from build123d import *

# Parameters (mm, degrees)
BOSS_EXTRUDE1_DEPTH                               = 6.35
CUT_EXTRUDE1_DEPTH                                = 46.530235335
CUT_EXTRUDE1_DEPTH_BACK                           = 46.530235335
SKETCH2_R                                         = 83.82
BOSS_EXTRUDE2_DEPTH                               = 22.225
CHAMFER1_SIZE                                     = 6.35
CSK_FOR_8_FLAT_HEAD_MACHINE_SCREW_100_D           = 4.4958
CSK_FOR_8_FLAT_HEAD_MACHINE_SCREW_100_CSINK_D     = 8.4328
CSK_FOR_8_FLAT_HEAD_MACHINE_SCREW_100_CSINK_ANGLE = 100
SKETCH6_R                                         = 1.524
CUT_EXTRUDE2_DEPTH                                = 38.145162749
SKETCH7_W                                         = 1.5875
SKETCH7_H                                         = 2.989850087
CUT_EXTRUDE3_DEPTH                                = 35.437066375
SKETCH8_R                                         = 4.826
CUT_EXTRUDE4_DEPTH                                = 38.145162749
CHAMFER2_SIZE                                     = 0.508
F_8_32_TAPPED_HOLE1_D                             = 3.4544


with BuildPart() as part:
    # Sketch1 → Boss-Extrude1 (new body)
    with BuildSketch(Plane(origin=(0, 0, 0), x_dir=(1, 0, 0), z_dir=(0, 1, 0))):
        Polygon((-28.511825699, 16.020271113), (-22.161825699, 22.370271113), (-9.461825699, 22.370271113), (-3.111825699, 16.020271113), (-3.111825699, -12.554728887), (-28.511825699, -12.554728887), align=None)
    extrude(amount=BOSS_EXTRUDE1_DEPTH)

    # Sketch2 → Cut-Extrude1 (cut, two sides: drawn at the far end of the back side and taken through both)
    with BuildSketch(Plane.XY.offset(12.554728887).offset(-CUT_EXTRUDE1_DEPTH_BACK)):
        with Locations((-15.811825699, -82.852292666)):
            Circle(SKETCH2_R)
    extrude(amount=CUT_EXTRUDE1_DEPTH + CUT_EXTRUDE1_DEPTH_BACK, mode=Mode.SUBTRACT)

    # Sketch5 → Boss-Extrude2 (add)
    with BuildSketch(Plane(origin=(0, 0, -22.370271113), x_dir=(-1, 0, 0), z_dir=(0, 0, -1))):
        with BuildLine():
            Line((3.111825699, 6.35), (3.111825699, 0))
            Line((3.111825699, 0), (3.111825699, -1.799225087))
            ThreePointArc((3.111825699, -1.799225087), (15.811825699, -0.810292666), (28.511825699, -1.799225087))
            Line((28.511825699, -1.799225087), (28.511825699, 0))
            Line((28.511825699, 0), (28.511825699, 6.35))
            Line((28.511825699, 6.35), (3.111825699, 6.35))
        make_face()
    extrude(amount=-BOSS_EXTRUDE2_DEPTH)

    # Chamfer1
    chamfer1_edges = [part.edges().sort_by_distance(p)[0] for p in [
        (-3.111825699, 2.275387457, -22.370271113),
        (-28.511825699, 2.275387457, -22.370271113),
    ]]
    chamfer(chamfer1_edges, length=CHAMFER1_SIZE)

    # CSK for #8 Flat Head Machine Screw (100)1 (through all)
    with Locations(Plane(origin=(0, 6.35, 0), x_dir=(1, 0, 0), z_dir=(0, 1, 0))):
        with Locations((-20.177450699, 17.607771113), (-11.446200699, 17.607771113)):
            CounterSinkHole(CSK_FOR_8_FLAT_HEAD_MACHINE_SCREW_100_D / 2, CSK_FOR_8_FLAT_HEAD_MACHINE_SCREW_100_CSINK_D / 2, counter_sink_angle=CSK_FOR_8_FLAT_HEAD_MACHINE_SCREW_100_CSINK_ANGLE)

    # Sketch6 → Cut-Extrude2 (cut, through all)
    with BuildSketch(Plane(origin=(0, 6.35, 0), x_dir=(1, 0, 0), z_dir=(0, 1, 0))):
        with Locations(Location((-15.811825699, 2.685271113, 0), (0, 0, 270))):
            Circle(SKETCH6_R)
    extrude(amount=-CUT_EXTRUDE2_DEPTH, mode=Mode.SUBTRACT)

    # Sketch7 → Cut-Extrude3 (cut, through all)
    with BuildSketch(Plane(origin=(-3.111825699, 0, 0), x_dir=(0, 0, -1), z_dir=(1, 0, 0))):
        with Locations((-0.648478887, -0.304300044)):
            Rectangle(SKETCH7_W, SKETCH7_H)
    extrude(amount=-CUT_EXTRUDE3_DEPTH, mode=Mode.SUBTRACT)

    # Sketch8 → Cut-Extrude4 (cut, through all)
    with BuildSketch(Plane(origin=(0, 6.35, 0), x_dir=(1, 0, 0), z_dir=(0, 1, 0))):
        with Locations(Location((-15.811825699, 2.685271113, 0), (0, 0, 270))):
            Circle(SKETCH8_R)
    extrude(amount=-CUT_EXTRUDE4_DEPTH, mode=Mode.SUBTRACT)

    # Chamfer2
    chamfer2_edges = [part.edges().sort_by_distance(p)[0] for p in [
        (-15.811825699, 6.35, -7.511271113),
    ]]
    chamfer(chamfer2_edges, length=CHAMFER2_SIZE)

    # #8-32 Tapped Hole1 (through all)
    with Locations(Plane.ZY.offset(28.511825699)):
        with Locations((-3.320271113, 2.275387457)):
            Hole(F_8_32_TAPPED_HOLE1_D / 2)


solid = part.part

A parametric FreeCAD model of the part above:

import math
import FreeCAD as App
import Part
import Sketcher
Q = App.Units.Quantity


def edges_at(feature, points):
    """Names of the edges that pass closest to the given points."""
    edges = feature.Shape.Edges
    near = lambda p: min(range(len(edges)), key=lambda i: edges[i].distToShape(Part.Vertex(*p))[0])
    return sorted({f"Edge{near(p) + 1}" for p in points})


def add_polygon(sketch, points):
    """Adds a closed chain of lines whose ends are joined by coincident constraints."""
    first, n = sketch.GeometryCount, len(points)
    for a, b in zip(points, points[1:] + points[:1]):
        sketch.addGeometry(Part.LineSegment(App.Vector(*a, 0), App.Vector(*b, 0)), False)
    for i in range(n):
        sketch.addConstraint(Sketcher.Constraint("Coincident", first + i, 2, first + (i + 1) % n, 1))

doc = App.newDocument("Part")
body = doc.addObject("PartDesign::Body", "Body")

# Sketch on XZ plane
sketch1 = doc.addObject("Sketcher::SketchObject", "Sketch")
body.addObject(sketch1)
sketch1.AttachmentSupport = (doc.XZ_Plane, [""])
sketch1.MapMode = "FlatFace"
add_polygon(sketch1, [(-22, -22), (-29, -16), (-29, 13), (-3, 13), (-3, -16), (-9, -22)])  # lines 0-5
sketch1.addConstraint([
    Sketcher.Constraint("Vertical", 1),
    Sketcher.Constraint("Horizontal", 2),
    Sketcher.Constraint("Vertical", 3),
    Sketcher.Constraint("Horizontal", 5),
    Sketcher.Constraint("Perpendicular", 0, 4),
    Sketcher.Constraint("Horizontal", 0, 2, 3, 2),
    Sketcher.Constraint("Equal", 0, 4),
    Sketcher.Constraint("DistanceX", 2, 1, 2, 2, Q("1 in")),
    Sketcher.Constraint("DistanceX", 5, 2, 5, 1, Q("0.5 in")),
    Sketcher.Constraint("DistanceY", 1, 1, 1, 2, Q("1.125 in")),
    Sketcher.Constraint("DistanceY", 0, 2, -1, 1, 16.020271),
    Sketcher.Constraint("DistanceX", 0, 2, -1, 1, 28.511826),
])
pad1 = doc.addObject("PartDesign::Pad", "Pad")
body.addObject(pad1)
pad1.Profile = sketch1
pad1.Length = Q("0.25 in")
pad1.Reversed = True

# Sketch on XY plane
sketch2 = doc.addObject("Sketcher::SketchObject", "Sketch001")
body.addObject(sketch2)
sketch2.AttachmentSupport = (doc.XY_Plane, [""])
sketch2.MapMode = "FlatFace"
sketch2.AttachmentOffset = App.Placement(App.Vector(0, 0, 12.554729), App.Rotation())
sketch2.addGeometry(Part.Circle(App.Vector(-16, -83, 0), App.Vector(0, 0, 1), 84), False)
sketch2.addConstraint([
    Sketcher.Constraint("Diameter", 0, Q("6.6 in")),
    Sketcher.Constraint("DistanceX", 0, 3, -1, 1, 15.811826),
    Sketcher.Constraint("DistanceY", 0, 3, -1, 1, 82.852293),
])
pocket1 = doc.addObject("PartDesign::Pocket", "Pocket")
body.addObject(pocket1)
pocket1.Profile = sketch2
pocket1.Type = "ThroughAll"
pocket1.Midplane = True

# Sketch on XY plane
sketch3 = doc.addObject("Sketcher::SketchObject", "Sketch002")
body.addObject(sketch3)
sketch3.AttachmentSupport = (doc.XY_Plane, [""])
sketch3.MapMode = "FlatFace"
sketch3.AttachmentOffset = App.Placement(App.Vector(0, 0, -22.370271), App.Rotation())
sketch3.addGeometry([
    Part.LineSegment(App.Vector(-3, 6, 0), App.Vector(-3, -2, 0)),
    Part.ArcOfCircle(Part.Circle(App.Vector(-16, -83, 0), App.Vector(0, 0, 1), 82), math.radians(81.09), math.radians(98.91)),
    Part.LineSegment(App.Vector(-29, -2, 0), App.Vector(-29, 6, 0)),
    Part.LineSegment(App.Vector(-29, 6, 0), App.Vector(-3, 6, 0)),
], False)
sketch3.addConstraint([
    Sketcher.Constraint("Coincident", 0, 2, 1, 1),
    Sketcher.Constraint("Coincident", 1, 2, 2, 1),
    Sketcher.Constraint("Coincident", 2, 2, 3, 1),
    Sketcher.Constraint("Coincident", 3, 2, 0, 1),
    Sketcher.Constraint("Vertical", 0),
    Sketcher.Constraint("Vertical", 2),
    Sketcher.Constraint("Horizontal", 3),
    Sketcher.Constraint("Horizontal", 0, 2, 1, 2),
    Sketcher.Constraint("DistanceX", 3, 1, 3, 2, Q("1 in")),
    Sketcher.Constraint("Radius", 1, Q("3.23 in")),
    Sketcher.Constraint("DistanceY", -1, 1, 2, 2, Q("0.25 in")),
    Sketcher.Constraint("DistanceY", 0, 2, 0, 1, 8.149225),
    Sketcher.Constraint("DistanceX", 1, 3, -1, 1, 15.811826),
])
pad2 = doc.addObject("PartDesign::Pad", "Pad001")
body.addObject(pad2)
pad2.Profile = sketch3
pad2.Length = Q("0.875 in")
doc.recompute()

chamfer = doc.addObject("PartDesign::Chamfer", "Chamfer")
body.addObject(chamfer)
chamfer.Base = (pad2, edges_at(pad2, [(-3.112, 2.275, -22.37), (-28.512, 2.275, -22.37)]))
chamfer.Size = Q("0.25 in")

# Sketch on XZ plane
sketch4 = doc.addObject("Sketcher::SketchObject", "Sketch003")
body.addObject(sketch4)
sketch4.AttachmentSupport = (doc.XZ_Plane, [""])
sketch4.MapMode = "FlatFace"
sketch4.AttachmentOffset = App.Placement(App.Vector(0, 0, -0.25 * 25.4), App.Rotation())
sketch4.addGeometry([
    Part.Circle(App.Vector(-20.2, -17.6, 0), App.Vector(0, 0, 1), 2.2),
    Part.Circle(App.Vector(-11.4, -17.6, 0), App.Vector(0, 0, 1), 2.2),
], False)
sketch4.addConstraint([
    Sketcher.Constraint("Equal", 0, 1),
    Sketcher.Constraint("Horizontal", 0, 3, 1, 3),
    Sketcher.Constraint("Diameter", 0, Q("0.177 in")),
    Sketcher.Constraint("DistanceX", 0, 3, 1, 3, Q("0.34375 in")),
    Sketcher.Constraint("DistanceX", 1, 3, -1, 1, 11.446201),
    Sketcher.Constraint("DistanceY", 0, 3, -1, 1, 17.607771),
])
doc.recompute()
hole = doc.addObject("PartDesign::Hole", "Hole")
body.addObject(hole)
hole.Profile = sketch4
hole.ThreadType = "None"
hole.Diameter = Q("0.177 in")
hole.DepthType = "ThroughAll"
hole.HoleCutType = "Countersink"
hole.HoleCutDiameter = Q("0.332 in")
hole.HoleCutCountersinkAngle = 100
hole.Reversed = True

# Sketch on XZ plane
sketch5 = doc.addObject("Sketcher::SketchObject", "Sketch004")
body.addObject(sketch5)
sketch5.AttachmentSupport = (doc.XZ_Plane, [""])
sketch5.MapMode = "FlatFace"
sketch5.AttachmentOffset = App.Placement(App.Vector(0, 0, -0.25 * 25.4), App.Rotation())
sketch5.addGeometry(Part.Circle(App.Vector(-15.8, -2.7, 0), App.Vector(0, 0, 1), 1.5), False)
sketch5.addConstraint([
    Sketcher.Constraint("Diameter", 0, Q("0.12 in")),
    Sketcher.Constraint("DistanceY", 0, 3, -1, 1, 2.685271),
    Sketcher.Constraint("DistanceX", 0, 3, -1, 1, 15.811826),
])
pocket2 = doc.addObject("PartDesign::Pocket", "Pocket001")
body.addObject(pocket2)
pocket2.Profile = sketch5
pocket2.Type = "ThroughAll"
pocket2.Reversed = True

# Sketch on YZ plane
sketch6 = doc.addObject("Sketcher::SketchObject", "Sketch005")
body.addObject(sketch6)
sketch6.AttachmentSupport = (doc.YZ_Plane, [""])
sketch6.MapMode = "FlatFace"
sketch6.AttachmentOffset = App.Placement(App.Vector(0, 0, -3.111826), App.Rotation())
add_polygon(sketch6, [(1.2, 1.4), (-1.8, 1.4), (-1.8, -0.1), (1.2, -0.1)])  # lines 0-3
sketch6.addConstraint([
    Sketcher.Constraint("Horizontal", 0),
    Sketcher.Constraint("Vertical", 1),
    Sketcher.Constraint("Horizontal", 2),
    Sketcher.Constraint("Vertical", 3),
    Sketcher.Constraint("DistanceY", 1, 2, 1, 1, Q("0.0625 in")),
    Sketcher.Constraint("DistanceX", -1, 1, 2, 2, Q("0.046875 in")),
    Sketcher.Constraint("DistanceX", 0, 2, 0, 1, 2.98985),
    Sketcher.Constraint("DistanceY", -1, 1, 0, 2, 1.442229),
])
pocket3 = doc.addObject("PartDesign::Pocket", "Pocket002")
body.addObject(pocket3)
pocket3.Profile = sketch6
pocket3.Type = "ThroughAll"

# Sketch on XZ plane
sketch7 = doc.addObject("Sketcher::SketchObject", "Sketch006")
body.addObject(sketch7)
sketch7.AttachmentSupport = (doc.XZ_Plane, [""])
sketch7.MapMode = "FlatFace"
sketch7.AttachmentOffset = App.Placement(App.Vector(0, 0, -0.25 * 25.4), App.Rotation())
sketch7.addGeometry(Part.Circle(App.Vector(-15.8, -2.7, 0), App.Vector(0, 0, 1), 4.8), False)
sketch7.addConstraint([
    Sketcher.Constraint("Diameter", 0, Q("0.38 in")),
    Sketcher.Constraint("DistanceY", 0, 3, -1, 1, 2.685271),
    Sketcher.Constraint("DistanceX", 0, 3, -1, 1, 15.811826),
])
pocket4 = doc.addObject("PartDesign::Pocket", "Pocket003")
body.addObject(pocket4)
pocket4.Profile = sketch7
pocket4.Type = "ThroughAll"
pocket4.Reversed = True
doc.recompute()

chamfer2 = doc.addObject("PartDesign::Chamfer", "Chamfer001")
body.addObject(chamfer2)
chamfer2.Base = (pocket4, edges_at(pocket4, [(-15.812, 6.35, -7.511)]))
chamfer2.Size = Q("0.02 in")

# Sketch on YZ plane
sketch8 = doc.addObject("Sketcher::SketchObject", "Sketch007")
body.addObject(sketch8)
sketch8.AttachmentSupport = (doc.YZ_Plane, [""])
sketch8.MapMode = "FlatFace"
sketch8.AttachmentOffset = App.Placement(App.Vector(0, 0, -28.511826), App.Rotation())
sketch8.addGeometry(Part.Circle(App.Vector(2.3, -3.3, 0), App.Vector(0, 0, 1), 1.7), False)
sketch8.addConstraint([
    Sketcher.Constraint("Diameter", 0, Q("0.136 in")),
    Sketcher.Constraint("DistanceY", 0, 3, -1, 1, 3.320271),
    Sketcher.Constraint("DistanceX", -1, 1, 0, 3, 2.275387),
])
doc.recompute()
hole2 = doc.addObject("PartDesign::Hole", "Hole001")
body.addObject(hole2)
hole2.Profile = sketch8
hole2.ThreadType = "None"
hole2.Diameter = Q("0.136 in")
hole2.DepthType = "ThroughAll"
hole2.Reversed = True

doc.recompute()
